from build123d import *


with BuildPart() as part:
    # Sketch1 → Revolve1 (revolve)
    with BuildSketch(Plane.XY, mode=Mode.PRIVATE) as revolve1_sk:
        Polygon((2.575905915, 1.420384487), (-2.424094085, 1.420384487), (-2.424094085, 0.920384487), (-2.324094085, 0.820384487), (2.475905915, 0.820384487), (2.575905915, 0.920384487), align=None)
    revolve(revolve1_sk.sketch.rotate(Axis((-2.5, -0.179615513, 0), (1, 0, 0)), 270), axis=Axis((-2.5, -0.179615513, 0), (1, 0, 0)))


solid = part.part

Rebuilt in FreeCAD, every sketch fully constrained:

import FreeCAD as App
import Part
import Sketcher
from FreeCAD import Vector

doc = App.newDocument("Part")
body = doc.addObject("PartDesign::Body", "Body")

sketch1 = body.newObject("Sketcher::SketchObject", "Sketch")
sketch1.AttachmentSupport = (doc.getObject("XY_Plane"), [""])
sketch1.MapMode = "FlatFace"
sketch1.addGeometry([
    Part.LineSegment(Vector(2.58, 1.42, 0), Vector(-2.42, 1.42, 0)),
    Part.LineSegment(Vector(-2.42, 1.42, 0), Vector(-2.42, 0.92, 0)),
    Part.LineSegment(Vector(-2.42, 0.92, 0), Vector(-2.32, 0.82, 0)),
    Part.LineSegment(Vector(-2.32, 0.82, 0), Vector(2.48, 0.82, 0)),
    Part.LineSegment(Vector(2.48, 0.82, 0), Vector(2.58, 0.92, 0)),
    Part.LineSegment(Vector(2.58, 0.92, 0), Vector(2.58, 1.42, 0)),
], False)
sketch1.addGeometry(Part.LineSegment(Vector(-2.42, -0.18, 0), Vector(2.58, -0.18, 0)), True)
sketch1.addConstraint([
    Sketcher.Constraint("Coincident", 0, 2, 1, 1),
    Sketcher.Constraint("Coincident", 1, 2, 2, 1),
    Sketcher.Constraint("Coincident", 2, 2, 3, 1),
    Sketcher.Constraint("Coincident", 3, 2, 4, 1),
    Sketcher.Constraint("Coincident", 4, 2, 5, 1),
    Sketcher.Constraint("Coincident", 5, 2, 0, 1),
    Sketcher.Constraint("Horizontal", 0),
    Sketcher.Constraint("Vertical", 1),
    Sketcher.Constraint("Horizontal", 3),
    Sketcher.Constraint("Vertical", 5),
    Sketcher.Constraint("Horizontal", 6),
    Sketcher.Constraint("Perpendicular", 2, 4),
    Sketcher.Constraint("Horizontal", 1, 2, 4, 2),
    Sketcher.Constraint("Vertical", 1, 2, 6, 1),
    Sketcher.Constraint("Vertical", 5, 2, 6, 2),
    Sketcher.Constraint("Equal", 2, 4),
    Sketcher.Constraint("DistanceX", 0, 2, 0, 1, 5.0),
    Sketcher.Constraint("DistanceX", 3, 1, 3, 2, 4.8),
    Sketcher.Constraint("DistanceY", 1, 2, 1, 1, 0.5),
    Sketcher.Constraint("DistanceY", 6, 1, 2, 2, 1.0),
    Sketcher.Constraint("DistanceX", 0, 2, -1, 1, 2.424094),
    Sketcher.Constraint("DistanceY", -1, 1, 0, 2, 1.420384),
])
revolution = body.newObject("PartDesign::Revolution", "Revolution")
revolution.Profile = sketch1
revolution.ReferenceAxis = (sketch1, ["Axis0"])
revolution.Angle = 360

doc.recompute()
